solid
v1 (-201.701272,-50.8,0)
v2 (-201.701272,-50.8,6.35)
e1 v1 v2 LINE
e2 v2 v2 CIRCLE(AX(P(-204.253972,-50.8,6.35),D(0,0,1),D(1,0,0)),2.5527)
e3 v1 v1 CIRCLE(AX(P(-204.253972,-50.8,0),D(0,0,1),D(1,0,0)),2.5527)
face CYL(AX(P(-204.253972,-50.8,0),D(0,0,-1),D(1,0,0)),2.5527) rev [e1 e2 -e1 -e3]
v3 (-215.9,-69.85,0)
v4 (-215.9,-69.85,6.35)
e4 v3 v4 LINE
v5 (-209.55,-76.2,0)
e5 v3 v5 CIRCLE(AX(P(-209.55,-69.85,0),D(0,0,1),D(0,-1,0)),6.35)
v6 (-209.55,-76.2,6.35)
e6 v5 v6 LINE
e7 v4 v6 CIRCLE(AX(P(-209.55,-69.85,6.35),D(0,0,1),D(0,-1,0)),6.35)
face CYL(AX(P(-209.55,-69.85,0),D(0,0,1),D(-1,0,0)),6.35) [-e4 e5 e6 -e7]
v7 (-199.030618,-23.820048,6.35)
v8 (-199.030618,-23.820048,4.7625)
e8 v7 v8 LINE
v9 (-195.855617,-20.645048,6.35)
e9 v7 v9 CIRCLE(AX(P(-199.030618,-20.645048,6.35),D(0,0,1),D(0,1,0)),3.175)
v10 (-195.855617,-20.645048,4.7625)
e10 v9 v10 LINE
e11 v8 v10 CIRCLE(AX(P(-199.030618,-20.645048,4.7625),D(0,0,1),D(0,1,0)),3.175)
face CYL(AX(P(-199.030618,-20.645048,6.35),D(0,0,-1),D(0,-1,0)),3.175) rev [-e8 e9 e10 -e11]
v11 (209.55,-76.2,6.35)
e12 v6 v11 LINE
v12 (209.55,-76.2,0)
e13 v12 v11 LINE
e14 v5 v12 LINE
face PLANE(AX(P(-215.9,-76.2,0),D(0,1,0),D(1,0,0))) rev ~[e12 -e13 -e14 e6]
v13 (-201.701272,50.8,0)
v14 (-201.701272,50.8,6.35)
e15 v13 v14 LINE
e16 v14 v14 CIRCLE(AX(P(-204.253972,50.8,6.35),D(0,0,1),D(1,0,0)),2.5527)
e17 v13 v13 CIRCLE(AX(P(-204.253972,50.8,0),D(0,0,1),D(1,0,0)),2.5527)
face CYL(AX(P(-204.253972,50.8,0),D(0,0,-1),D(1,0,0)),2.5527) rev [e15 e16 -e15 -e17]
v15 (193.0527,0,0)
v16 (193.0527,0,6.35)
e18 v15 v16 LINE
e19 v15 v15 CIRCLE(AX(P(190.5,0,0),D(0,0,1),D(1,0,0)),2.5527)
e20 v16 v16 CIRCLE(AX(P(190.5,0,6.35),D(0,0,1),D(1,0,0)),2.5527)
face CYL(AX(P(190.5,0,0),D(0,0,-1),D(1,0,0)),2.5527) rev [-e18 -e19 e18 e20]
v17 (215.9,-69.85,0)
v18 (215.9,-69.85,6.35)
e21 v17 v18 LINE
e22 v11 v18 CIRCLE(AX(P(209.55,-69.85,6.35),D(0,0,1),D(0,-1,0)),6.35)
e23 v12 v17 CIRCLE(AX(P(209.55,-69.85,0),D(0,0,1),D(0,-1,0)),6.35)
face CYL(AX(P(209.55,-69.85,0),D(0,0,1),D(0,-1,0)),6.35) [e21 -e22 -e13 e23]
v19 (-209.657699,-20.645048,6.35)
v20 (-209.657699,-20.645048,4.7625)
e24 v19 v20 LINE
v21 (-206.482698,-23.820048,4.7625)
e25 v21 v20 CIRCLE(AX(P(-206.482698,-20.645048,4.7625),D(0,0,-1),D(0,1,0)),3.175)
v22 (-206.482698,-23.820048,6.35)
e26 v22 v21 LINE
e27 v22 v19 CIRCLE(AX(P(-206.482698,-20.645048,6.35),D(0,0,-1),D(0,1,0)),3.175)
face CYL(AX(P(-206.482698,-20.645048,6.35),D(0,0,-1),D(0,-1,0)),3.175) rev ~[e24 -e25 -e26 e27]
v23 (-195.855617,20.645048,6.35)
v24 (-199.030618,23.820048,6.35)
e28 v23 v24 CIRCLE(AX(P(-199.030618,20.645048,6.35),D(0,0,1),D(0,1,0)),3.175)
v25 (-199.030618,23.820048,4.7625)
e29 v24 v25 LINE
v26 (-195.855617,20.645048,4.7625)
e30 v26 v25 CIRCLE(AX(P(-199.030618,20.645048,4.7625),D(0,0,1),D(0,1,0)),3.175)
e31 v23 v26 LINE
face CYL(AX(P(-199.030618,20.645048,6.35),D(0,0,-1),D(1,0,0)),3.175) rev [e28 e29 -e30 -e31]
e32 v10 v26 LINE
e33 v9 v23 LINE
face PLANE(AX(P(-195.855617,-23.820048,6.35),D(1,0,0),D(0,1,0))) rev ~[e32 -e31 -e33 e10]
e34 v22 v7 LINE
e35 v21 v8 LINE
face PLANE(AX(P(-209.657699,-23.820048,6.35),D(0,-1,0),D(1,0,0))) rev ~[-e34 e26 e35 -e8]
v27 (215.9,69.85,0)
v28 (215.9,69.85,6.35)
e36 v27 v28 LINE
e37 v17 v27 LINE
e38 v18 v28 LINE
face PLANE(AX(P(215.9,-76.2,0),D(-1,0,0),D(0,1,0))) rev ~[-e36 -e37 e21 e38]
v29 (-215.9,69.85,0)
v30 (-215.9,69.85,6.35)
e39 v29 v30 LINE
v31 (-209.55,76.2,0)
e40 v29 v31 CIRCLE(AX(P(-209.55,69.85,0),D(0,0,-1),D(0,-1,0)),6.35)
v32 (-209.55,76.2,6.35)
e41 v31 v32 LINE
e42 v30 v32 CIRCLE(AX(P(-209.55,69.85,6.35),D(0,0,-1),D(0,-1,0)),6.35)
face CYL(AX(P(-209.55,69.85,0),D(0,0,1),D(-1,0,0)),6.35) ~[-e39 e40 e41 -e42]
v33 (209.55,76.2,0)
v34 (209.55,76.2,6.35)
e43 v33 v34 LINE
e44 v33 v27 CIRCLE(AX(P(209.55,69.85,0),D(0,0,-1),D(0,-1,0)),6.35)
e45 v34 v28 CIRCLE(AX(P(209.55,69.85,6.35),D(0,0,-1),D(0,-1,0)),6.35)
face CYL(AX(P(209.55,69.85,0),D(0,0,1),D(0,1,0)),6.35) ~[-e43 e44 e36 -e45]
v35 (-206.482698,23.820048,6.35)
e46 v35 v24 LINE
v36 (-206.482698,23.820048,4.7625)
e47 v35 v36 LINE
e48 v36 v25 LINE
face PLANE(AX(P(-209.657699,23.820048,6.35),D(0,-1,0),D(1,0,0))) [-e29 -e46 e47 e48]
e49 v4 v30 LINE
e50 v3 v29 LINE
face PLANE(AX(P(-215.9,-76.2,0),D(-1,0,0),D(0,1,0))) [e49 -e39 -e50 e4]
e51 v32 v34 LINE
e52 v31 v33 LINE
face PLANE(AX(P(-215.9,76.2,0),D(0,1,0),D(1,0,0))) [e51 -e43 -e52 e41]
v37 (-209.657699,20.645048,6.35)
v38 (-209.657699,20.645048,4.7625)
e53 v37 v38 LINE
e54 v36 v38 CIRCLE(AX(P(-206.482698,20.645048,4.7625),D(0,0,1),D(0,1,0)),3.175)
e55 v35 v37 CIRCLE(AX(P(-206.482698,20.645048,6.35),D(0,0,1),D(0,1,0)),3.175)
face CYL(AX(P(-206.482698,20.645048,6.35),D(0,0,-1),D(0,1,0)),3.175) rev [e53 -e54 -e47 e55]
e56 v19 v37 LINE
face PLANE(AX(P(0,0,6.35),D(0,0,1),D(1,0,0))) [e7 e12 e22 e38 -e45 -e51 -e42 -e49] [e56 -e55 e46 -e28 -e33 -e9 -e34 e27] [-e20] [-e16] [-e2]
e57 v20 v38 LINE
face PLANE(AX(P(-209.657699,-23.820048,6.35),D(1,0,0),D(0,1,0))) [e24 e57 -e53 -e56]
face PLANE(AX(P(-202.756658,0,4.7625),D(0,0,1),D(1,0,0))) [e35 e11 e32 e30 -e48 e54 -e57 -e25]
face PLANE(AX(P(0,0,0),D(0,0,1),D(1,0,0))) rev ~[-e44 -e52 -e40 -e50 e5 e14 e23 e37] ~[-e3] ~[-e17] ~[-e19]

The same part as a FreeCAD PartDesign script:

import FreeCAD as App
import Part
import Sketcher

V = App.Vector
Q = App.Units.Quantity


def edges_at(feature, points):
    """Names of the edges that pass closest to the given points."""
    edges = feature.Shape.Edges
    near = lambda p: min(range(len(edges)), key=lambda i: edges[i].distToShape(Part.Vertex(*p))[0])
    return sorted({f"Edge{near(p) + 1}" for p in points})


def add_polygon(sketch, points):
    """Adds a closed chain of lines whose ends are joined by coincident constraints."""
    first, n = sketch.GeometryCount, len(points)
    for a, b in zip(points, points[1:] + points[:1]):
        sketch.addGeometry(Part.LineSegment(App.Vector(*a, 0), App.Vector(*b, 0)), False)
    for i in range(n):
        sketch.addConstraint(Sketcher.Constraint("Coincident", first + i, 2, first + (i + 1) % n, 1))

doc = App.newDocument("Part")
body = doc.addObject("PartDesign::Body", "Body")

sketch1 = body.newObject("Sketcher::SketchObject", "Sketch")
sketch1.AttachmentSupport = (doc.getObject("XY_Plane"), [""])
sketch1.MapMode = "FlatFace"
add_polygon(sketch1, [(-215.9, 76.2), (-215.9, -76.2), (215.9, -76.2), (215.9, 76.2)])
sketch1.addGeometry(Part.Circle(V(-204.3, -50.8, 0), V(0, 0, 1), 2.6), False)
sketch1.addGeometry(Part.Circle(V(-204.3, 50.8, 0), V(0, 0, 1), 2.6), False)
sketch1.addGeometry(Part.Circle(V(190.5, 0, 0), V(0, 0, 1), 2.6), False)
sketch1.addConstraint([
    Sketcher.Constraint("Vertical", 0),
    Sketcher.Constraint("Horizontal", 1),
    Sketcher.Constraint("Vertical", 2),
    Sketcher.Constraint("Horizontal", 3),
    Sketcher.Constraint("Equal", 4, 5),
    Sketcher.Constraint("Equal", 5, 6),
    Sketcher.Constraint("Symmetric", 0, 2, 2, 2, -1, 1),
    Sketcher.Constraint("Symmetric", 4, 3, 5, 3, -1),
    Sketcher.Constraint("PointOnObject", 6, 3, -1),
    Sketcher.Constraint("DistanceX", 1, 1, 1, 2, Q("17 in")),
    Sketcher.Constraint("DistanceY", 0, 2, 0, 1, Q("6 in")),
    Sketcher.Constraint("Diameter", 4, Q("0.201 in")),
    Sketcher.Constraint("DistanceY", 4, 3, -1, 1, Q("2 in")),
    Sketcher.Constraint("DistanceX", 0, 2, 6, 3, Q("16 in")),
    Sketcher.Constraint("DistanceX", 4, 3, -1, 1, 204.253972),
])
pad1 = body.newObject("PartDesign::Pad", "Pad")
pad1.Profile = sketch1
pad1.Length = Q("0.25 in")

sketch2 = body.newObject("Sketcher::SketchObject", "Sketch001")
sketch2.AttachmentSupport = (doc.getObject("XY_Plane"), [""])
sketch2.MapMode = "FlatFace"
sketch2.AttachmentOffset = App.Placement(V(0, 0, 0.25 * 25.4), App.Rotation())
add_polygon(sketch2, [(-210, 24), (-210, -24), (-196, -24), (-196, 24)])
sketch2.addConstraint([
    Sketcher.Constraint("Vertical", 0),
    Sketcher.Constraint("Horizontal", 1),
    Sketcher.Constraint("Vertical", 2),
    Sketcher.Constraint("Horizontal", 3),
    Sketcher.Constraint("DistanceX", 1, 1, 1, 2, 13.802081),
    Sketcher.Constraint("DistanceX", 0, 2, -1, 1, 209.657699),
    Sketcher.Constraint("DistanceY", 0, 2, 0, 1, 47.640096),
    Sketcher.Constraint("DistanceY", 0, 2, -1, 1, 23.820048),
])
pocket1 = body.newObject("PartDesign::Pocket", "Pocket")
pocket1.Profile = sketch2
pocket1.Length = Q("0.0625 in")
doc.recompute()

fillet = body.newObject("PartDesign::Fillet", "Fillet")
fillet.Base = (pocket1, edges_at(pocket1, [
    (-209.658, 23.82, 5.556),
    (-195.856, 23.82, 5.556),
    (-209.658, -23.82, 5.556),
    (-195.856, -23.82, 5.556),
]))
fillet.Radius = Q("0.125 in")
doc.recompute()

fillet2 = body.newObject("PartDesign::Fillet", "Fillet001")
fillet2.Base = (fillet, edges_at(fillet, [
    (-215.9, -76.2, 3.175),
    (-215.9, 76.2, 3.175),
    (215.9, 76.2, 3.175),
    (215.9, -76.2, 3.175),
]))
fillet2.Radius = Q("0.25 in")

doc.recompute()
